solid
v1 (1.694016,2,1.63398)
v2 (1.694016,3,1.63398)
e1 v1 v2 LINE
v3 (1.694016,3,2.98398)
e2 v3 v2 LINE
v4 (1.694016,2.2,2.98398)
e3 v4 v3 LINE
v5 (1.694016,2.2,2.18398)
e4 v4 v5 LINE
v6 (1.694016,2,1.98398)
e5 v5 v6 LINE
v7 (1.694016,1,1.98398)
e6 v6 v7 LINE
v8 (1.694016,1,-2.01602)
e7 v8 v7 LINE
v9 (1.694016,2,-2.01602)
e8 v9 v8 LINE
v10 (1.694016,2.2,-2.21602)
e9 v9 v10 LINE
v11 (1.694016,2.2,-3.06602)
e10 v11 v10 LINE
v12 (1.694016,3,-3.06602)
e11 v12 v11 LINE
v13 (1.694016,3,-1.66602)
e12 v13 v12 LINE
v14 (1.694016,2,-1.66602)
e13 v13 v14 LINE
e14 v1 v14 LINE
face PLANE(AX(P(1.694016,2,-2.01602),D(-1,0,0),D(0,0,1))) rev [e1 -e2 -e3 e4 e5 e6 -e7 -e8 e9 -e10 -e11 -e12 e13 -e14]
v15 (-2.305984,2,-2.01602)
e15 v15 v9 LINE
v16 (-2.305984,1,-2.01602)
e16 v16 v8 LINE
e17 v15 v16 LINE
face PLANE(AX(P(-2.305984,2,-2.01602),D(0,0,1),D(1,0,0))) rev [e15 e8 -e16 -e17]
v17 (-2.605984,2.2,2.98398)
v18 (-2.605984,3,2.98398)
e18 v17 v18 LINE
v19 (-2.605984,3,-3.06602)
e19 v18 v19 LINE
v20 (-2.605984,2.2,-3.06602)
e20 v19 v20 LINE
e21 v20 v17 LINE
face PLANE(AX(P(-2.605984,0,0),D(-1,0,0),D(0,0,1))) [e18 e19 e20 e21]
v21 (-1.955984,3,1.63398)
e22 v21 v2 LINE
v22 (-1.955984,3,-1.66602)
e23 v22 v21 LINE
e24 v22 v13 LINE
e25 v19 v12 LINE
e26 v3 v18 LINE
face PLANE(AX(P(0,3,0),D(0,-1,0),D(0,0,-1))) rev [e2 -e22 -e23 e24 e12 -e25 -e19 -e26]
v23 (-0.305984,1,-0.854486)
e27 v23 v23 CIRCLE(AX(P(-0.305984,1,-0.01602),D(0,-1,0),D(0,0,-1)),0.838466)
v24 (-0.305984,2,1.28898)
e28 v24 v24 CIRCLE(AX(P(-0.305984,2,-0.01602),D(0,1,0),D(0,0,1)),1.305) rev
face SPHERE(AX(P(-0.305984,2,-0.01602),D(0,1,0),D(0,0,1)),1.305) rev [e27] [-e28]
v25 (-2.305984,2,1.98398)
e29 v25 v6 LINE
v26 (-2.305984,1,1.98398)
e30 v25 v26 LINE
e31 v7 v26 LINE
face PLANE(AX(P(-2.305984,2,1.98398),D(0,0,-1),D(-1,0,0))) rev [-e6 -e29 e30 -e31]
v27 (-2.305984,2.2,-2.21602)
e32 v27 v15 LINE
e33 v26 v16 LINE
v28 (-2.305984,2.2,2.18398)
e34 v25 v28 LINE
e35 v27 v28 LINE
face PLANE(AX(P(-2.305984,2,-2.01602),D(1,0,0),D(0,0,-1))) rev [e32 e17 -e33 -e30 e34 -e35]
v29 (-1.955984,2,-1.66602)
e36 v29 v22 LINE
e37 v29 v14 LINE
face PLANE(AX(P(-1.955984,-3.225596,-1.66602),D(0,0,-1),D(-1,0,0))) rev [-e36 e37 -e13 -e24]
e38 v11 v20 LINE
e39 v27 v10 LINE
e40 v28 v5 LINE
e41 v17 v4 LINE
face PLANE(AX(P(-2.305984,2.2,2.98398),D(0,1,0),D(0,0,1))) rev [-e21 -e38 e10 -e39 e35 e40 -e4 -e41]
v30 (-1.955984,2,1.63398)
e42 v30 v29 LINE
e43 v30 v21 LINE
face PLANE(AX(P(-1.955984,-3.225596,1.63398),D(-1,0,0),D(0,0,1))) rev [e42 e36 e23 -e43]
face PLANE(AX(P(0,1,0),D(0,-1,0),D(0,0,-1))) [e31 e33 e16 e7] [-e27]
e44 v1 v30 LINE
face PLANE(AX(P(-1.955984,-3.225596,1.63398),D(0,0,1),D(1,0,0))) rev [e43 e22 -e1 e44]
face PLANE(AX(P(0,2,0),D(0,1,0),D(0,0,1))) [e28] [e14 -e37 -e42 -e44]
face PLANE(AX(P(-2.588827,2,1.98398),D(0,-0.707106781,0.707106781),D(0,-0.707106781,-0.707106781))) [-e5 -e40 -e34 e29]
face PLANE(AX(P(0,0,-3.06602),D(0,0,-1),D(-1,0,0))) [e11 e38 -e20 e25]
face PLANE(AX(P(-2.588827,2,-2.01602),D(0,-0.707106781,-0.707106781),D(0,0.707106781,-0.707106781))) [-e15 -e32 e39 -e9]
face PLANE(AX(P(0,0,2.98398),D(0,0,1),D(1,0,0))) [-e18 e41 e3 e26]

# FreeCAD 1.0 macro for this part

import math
import FreeCAD as App
import Part
import Sketcher

V = App.Vector


def add_polygon(sketch, points):
    """Adds a closed chain of lines whose ends are joined by coincident constraints."""
    first, n = sketch.GeometryCount, len(points)
    for a, b in zip(points, points[1:] + points[:1]):
        sketch.addGeometry(Part.LineSegment(App.Vector(*a, 0), App.Vector(*b, 0)), False)
    for i in range(n):
        sketch.addConstraint(Sketcher.Constraint("Coincident", first + i, 2, first + (i + 1) % n, 1))

doc = App.newDocument("Part")
body = doc.addObject("PartDesign::Body", "Body")

sketch1 = body.newObject("Sketcher::SketchObject", "Sketch")
sketch1.AttachmentSupport = (doc.getObject("XZ_Plane"), [""])
sketch1.MapMode = "FlatFace"
add_polygon(sketch1, [(-2.305984, -2.01602), (-2.305984, 1.98398), (1.694016, 1.98398), (1.694016, -2.01602)])
sketch1.addConstraint(Sketcher.Constraint("Vertical", 0))
sketch1.addConstraint(Sketcher.Constraint("Horizontal", 1))
sketch1.addConstraint(Sketcher.Constraint("Vertical", 2))
sketch1.addConstraint(Sketcher.Constraint("Horizontal", 3))
sketch1.addConstraint(Sketcher.Constraint("Equal", 3, 0))
sketch1.addConstraint(Sketcher.Constraint("DistanceX", 1, 1, 1, 2, 4.0))
sketch1.addConstraint(Sketcher.Constraint("DistanceY", -1, 1, 0, 2, 1.98398))
sketch1.addConstraint(Sketcher.Constraint("DistanceX", 0, 2, -1, 1, 2.305984))
pad1 = body.newObject("PartDesign::Pad", "Pad")
pad1.Profile = sketch1
pad1.Length = 2
pad1.Reversed = True

sketch2 = body.newObject("Sketcher::SketchObject", "Sketch001")
sketch2.AttachmentSupport = (doc.getObject("XZ_Plane"), [""])
sketch2.MapMode = "FlatFace"
sketch2.AttachmentOffset = App.Placement(V(0, 0, -2), App.Rotation())
sketch2.addGeometry(Part.LineSegment(V(-0.305984, 1.28898, 0), V(-0.305984, -1.32102, 0)), False)
sketch2.addGeometry(Part.ArcOfCircle(Part.Circle(V(-0.305984, -0.01602, 0), V(0, 0, 1), 1.305), math.radians(90), math.radians(270)), False)
sketch2.addGeometry(Part.LineSegment(V(-0.305984, 1.28898, 0), V(-0.305984, -1.32102, 0)), True)
sketch2.addConstraint(Sketcher.Constraint("Coincident", 0, 1, 1, 1))
sketch2.addConstraint(Sketcher.Constraint("Coincident", 1, 2, 0, 2))
sketch2.addConstraint(Sketcher.Constraint("Vertical", 0))
sketch2.addConstraint(Sketcher.Constraint("Vertical", 2))
sketch2.addConstraint(Sketcher.Constraint("Coincident", 2, 1, 0, 1))
sketch2.addConstraint(Sketcher.Constraint("Vertical", 1, 3, 0, 1))
sketch2.addConstraint(Sketcher.Constraint("Equal", 0, 2))
sketch2.addConstraint(Sketcher.Constraint("Radius", 1, 1.305))
sketch2.addConstraint(Sketcher.Constraint("DistanceY", 1, 3, -1, 1, 0.01602))
sketch2.addConstraint(Sketcher.Constraint("DistanceX", 1, 3, -1, 1, 0.305984))
groove = body.newObject("PartDesign::Groove", "Groove")
groove.Profile = sketch2
groove.ReferenceAxis = (sketch2, ["Axis0"])
groove.Angle = 360

sketch3 = body.newObject("Sketcher::SketchObject", "Sketch002")
sketch3.AttachmentSupport = (doc.getObject("XZ_Plane"), [""])
sketch3.MapMode = "FlatFace"
add_polygon(sketch3, [(-4.717305, 2.624123), (-4.717305, -2.171708), (2.278434, -2.171708), (2.278434, 2.624123)])
sketch3.addConstraint(Sketcher.Constraint("Vertical", 0))
sketch3.addConstraint(Sketcher.Constraint("Horizontal", 1))
sketch3.addConstraint(Sketcher.Constraint("Vertical", 2))
sketch3.addConstraint(Sketcher.Constraint("Horizontal", 3))
sketch3.addConstraint(Sketcher.Constraint("DistanceX", 1, 1, 1, 2, 6.995739))
sketch3.addConstraint(Sketcher.Constraint("DistanceY", 0, 2, 0, 1, 4.795831))
sketch3.addConstraint(Sketcher.Constraint("DistanceY", 0, 2, -1, 1, 2.171708))
sketch3.addConstraint(Sketcher.Constraint("DistanceX", 0, 2, -1, 1, 4.717305))
pocket1 = body.newObject("PartDesign::Pocket", "Pocket")
pocket1.Profile = sketch3
pocket1.Length = 1

sketch4 = body.newObject("Sketcher::SketchObject", "Sketch003")
sketch4.AttachmentSupport = (doc.getObject("XZ_Plane"), [""])
sketch4.MapMode = "FlatFace"
sketch4.AttachmentOffset = App.Placement(V(0, 0, -2), App.Rotation())
add_polygon(sketch4, [(1.694016, 1.58398), (-1.905984, 1.58398), (-1.905984, -1.61602), (1.694016, -1.61602), (1.694016, -2.06602), (-2.305984, -2.06602), (-2.305984, 1.98398), (1.694016, 1.98398)])
sketch4.addConstraint(Sketcher.Constraint("Horizontal", 0))
sketch4.addConstraint(Sketcher.Constraint("Vertical", 1))
sketch4.addConstraint(Sketcher.Constraint("Horizontal", 2))
sketch4.addConstraint(Sketcher.Constraint("Vertical", 3))
sketch4.addConstraint(Sketcher.Constraint("Horizontal", 4))
sketch4.addConstraint(Sketcher.Constraint("Vertical", 5))
sketch4.addConstraint(Sketcher.Constraint("Horizontal", 6))
sketch4.addConstraint(Sketcher.Constraint("Vertical", 7))
sketch4.addConstraint(Sketcher.Constraint("Vertical", 3, 2, 6, 2))
sketch4.addConstraint(Sketcher.Constraint("DistanceX", 4, 2, 4, 1, 4.0))
sketch4.addConstraint(Sketcher.Constraint("DistanceX", 0, 2, 0, 1, 3.6))
sketch4.addConstraint(Sketcher.Constraint("DistanceY", 1, 2, 1, 1, 3.2))
sketch4.addConstraint(Sketcher.Constraint("DistanceY", 7, 2, 7, 1, 0.4))
sketch4.addConstraint(Sketcher.Constraint("DistanceY", 3, 2, 3, 1, 0.45))
sketch4.addConstraint(Sketcher.Constraint("DistanceY", -1, 1, 0, 2, 1.58398))
sketch4.addConstraint(Sketcher.Constraint("DistanceX", 0, 2, -1, 1, 1.905984))
pad2 = body.newObject("PartDesign::Pad", "Pad001")
pad2.Profile = sketch4
pad2.Length = 1
pad2.Reversed = True

sketch5 = body.newObject("Sketcher::SketchObject", "Sketch004")
sketch5.AttachmentSupport = (doc.getObject("XY_Plane"), [""])
sketch5.MapMode = "FlatFace"
sketch5.AttachmentOffset = App.Placement(V(0, 0, 1.98398), App.Rotation())
add_polygon(sketch5, [(-2.305984, 3), (-2.305984, 2.2), (1.694016, 2.2), (1.694016, 3)])
sketch5.addConstraint(Sketcher.Constraint("Vertical", 0))
sketch5.addConstraint(Sketcher.Constraint("Horizontal", 1))
sketch5.addConstraint(Sketcher.Constraint("Vertical", 2))
sketch5.addConstraint(Sketcher.Constraint("Horizontal", 3))
sketch5.addConstraint(Sketcher.Constraint("DistanceX", 1, 1, 1, 2, 4.0))
sketch5.addConstraint(Sketcher.Constraint("DistanceY", 0, 2, 0, 1, 0.8))
sketch5.addConstraint(Sketcher.Constraint("DistanceY", -1, 1, 2, 2, 3.0))
sketch5.addConstraint(Sketcher.Constraint("DistanceX", 0, 2, -1, 1, 2.305984))
pad3 = body.newObject("PartDesign::Pad", "Pad002")
pad3.Profile = sketch5
pad3.Length = 1

sketch6 = body.newObject("Sketcher::SketchObject", "Sketch005")
sketch6.AttachmentSupport = (doc.getObject("XY_Plane"), [""])
sketch6.MapMode = "FlatFace"
sketch6.AttachmentOffset = App.Placement(V(0, 0, -2.06602), App.Rotation())
add_polygon(sketch6, [(1.694016, 3), (1.694016, 2.2), (-2.305984, 2.2), (-2.305984, 3)])
sketch6.addConstraint(Sketcher.Constraint("Vertical", 0))
sketch6.addConstraint(Sketcher.Constraint("Horizontal", 1))
sketch6.addConstraint(Sketcher.Constraint("Vertical", 2))
sketch6.addConstraint(Sketcher.Constraint("Horizontal", 3))
sketch6.addConstraint(Sketcher.Constraint("DistanceX", 1, 2, 1, 1, 4.0))
sketch6.addConstraint(Sketcher.Constraint("DistanceY", 0, 2, 0, 1, 0.8))
sketch6.addConstraint(Sketcher.Constraint("DistanceY", -1, 1, 2, 2, 3.0))
sketch6.addConstraint(Sketcher.Constraint("DistanceX", -1, 1, 0, 2, 1.694016))
pad4 = body.newObject("PartDesign::Pad", "Pad003")
pad4.Profile = sketch6
pad4.Length = 1
pad4.Reversed = True

sketch7 = body.newObject("Sketcher::SketchObject", "Sketch006")
sketch7.AttachmentSupport = (doc.getObject("XZ_Plane"), [""])
sketch7.MapMode = "FlatFace"
sketch7.AttachmentOffset = App.Placement(V(0, 0, -2), App.Rotation())
add_polygon(sketch7, [(-2.305984, -2.01602), (-2.305984, -2.06602), (1.694016, -2.06602), (1.694016, -2.01602)])
sketch7.addConstraint(Sketcher.Constraint("Vertical", 0))
sketch7.addConstraint(Sketcher.Constraint("Horizontal", 1))
sketch7.addConstraint(Sketcher.Constraint("Vertical", 2))
sketch7.addConstraint(Sketcher.Constraint("Horizontal", 3))
sketch7.addConstraint(Sketcher.Constraint("DistanceX", 1, 1, 1, 2, 4.0))
sketch7.addConstraint(Sketcher.Constraint("DistanceY", 0, 2, 0, 1, 0.05))
sketch7.addConstraint(Sketcher.Constraint("DistanceY", 0, 2, -1, 1, 2.06602))
sketch7.addConstraint(Sketcher.Constraint("DistanceX", 0, 2, -1, 1, 2.305984))
pocket2 = body.newObject("PartDesign::Pocket", "Pocket001")
pocket2.Profile = sketch7
pocket2.Length = 0.2

sketch8 = body.newObject("Sketcher::SketchObject", "Sketch007")
sketch8.AttachmentSupport = (doc.getObject("YZ_Plane"), [""])
sketch8.MapMode = "FlatFace"
sketch8.AttachmentOffset = App.Placement(V(0, 0, -2.305984), App.Rotation())
add_polygon(sketch8, [(3, -3.06602), (2.2, -3.06602), (2.2, 2.98398), (3, 2.98398)])
sketch8.addConstraint(Sketcher.Constraint("Horizontal", 0))
sketch8.addConstraint(Sketcher.Constraint("Vertical", 1))
sketch8.addConstraint(Sketcher.Constraint("Horizontal", 2))
sketch8.addConstraint(Sketcher.Constraint("Vertical", 3))
sketch8.addConstraint(Sketcher.Constraint("DistanceX", 0, 2, 0, 1, 0.8))
sketch8.addConstraint(Sketcher.Constraint("DistanceX", -1, 1, 2, 2, 3.0))
sketch8.addConstraint(Sketcher.Constraint("DistanceY", 1, 1, 1, 2, 6.05))
sketch8.addConstraint(Sketcher.Constraint("DistanceY", 0, 2, -1, 1, 3.06602))
pad5 = body.newObject("PartDesign::Pad", "Pad004")
pad5.Profile = sketch8
pad5.Length = 0.3
pad5.Reversed = True

sketch9 = body.newObject("Sketcher::SketchObject", "Sketch008")
sketch9.AttachmentSupport = (doc.getObject("XZ_Plane"), [""])
sketch9.MapMode = "FlatFace"
sketch9.AttachmentOffset = App.Placement(V(0, 0, -3), App.Rotation())
add_polygon(sketch9, [(-1.955984, -1.66602), (-1.955984, 1.63398), (2.095788, 1.63398), (2.095788, -1.66602)])
sketch9.addConstraint(Sketcher.Constraint("Vertical", 0))
sketch9.addConstraint(Sketcher.Constraint("Horizontal", 1))
sketch9.addConstraint(Sketcher.Constraint("Vertical", 2))
sketch9.addConstraint(Sketcher.Constraint("Horizontal", 3))
sketch9.addConstraint(Sketcher.Constraint("DistanceY", 0, 1, 0, 2, 3.3))
sketch9.addConstraint(Sketcher.Constraint("DistanceX", 1, 1, 1, 2, 4.051772))
sketch9.addConstraint(Sketcher.Constraint("DistanceY", -1, 1, 0, 2, 1.63398))
sketch9.addConstraint(Sketcher.Constraint("DistanceX", 0, 2, -1, 1, 1.955984))
pocket3 = body.newObject("PartDesign::Pocket", "Pocket002")
pocket3.Profile = sketch9
pocket3.Length = 1
pocket3.Reversed = True

sketch10 = body.newObject("Sketcher::SketchObject", "Sketch009")
sketch10.AttachmentSupport = (doc.getObject("YZ_Plane"), [""])
sketch10.MapMode = "FlatFace"
sketch10.AttachmentOffset = App.Placement(V(0, 0, 1.694016), App.Rotation())
add_polygon(sketch10, [(2.2, 2.18398), (2, 1.98398), (2.2, 1.98398)])
sketch10.addConstraint(Sketcher.Constraint("Horizontal", 1))
sketch10.addConstraint(Sketcher.Constraint("Vertical", 2))
sketch10.addConstraint(Sketcher.Constraint("Equal", 1, 2))
sketch10.addConstraint(Sketcher.Constraint("DistanceX", 1, 1, 1, 2, 0.2))
sketch10.addConstraint(Sketcher.Constraint("DistanceX", -1, 1, 0, 2, 2.0))
sketch10.addConstraint(Sketcher.Constraint("DistanceY", -1, 1, 0, 2, 1.98398))
pad6 = body.newObject("PartDesign::Pad", "Pad005")
pad6.Profile = sketch10
pad6.Length = 4
pad6.Reversed = True

sketch11 = body.newObject("Sketcher::SketchObject", "Sketch010")
sketch11.AttachmentSupport = (doc.getObject("YZ_Plane"), [""])
sketch11.MapMode = "FlatFace"
sketch11.AttachmentOffset = App.Placement(V(0, 0, 1.694016), App.Rotation())
add_polygon(sketch11, [(2.2, -2.01602), (2, -2.01602), (2.2, -2.21602)])
sketch11.addConstraint(Sketcher.Constraint("Horizontal", 0))
sketch11.addConstraint(Sketcher.Constraint("Vertical", 2))
sketch11.addConstraint(Sketcher.Constraint("Equal", 0, 2))
sketch11.addConstraint(Sketcher.Constraint("DistanceX", 0, 2, 0, 1, 0.2))
sketch11.addConstraint(Sketcher.Constraint("DistanceX", -1, 1, 0, 2, 2.0))
sketch11.addConstraint(Sketcher.Constraint("DistanceY", 0, 2, -1, 1, 2.01602))
pad7 = body.newObject("PartDesign::Pad", "Pad006")
pad7.Profile = sketch11
pad7.Length = 4
pad7.Reversed = True

doc.recompute()
